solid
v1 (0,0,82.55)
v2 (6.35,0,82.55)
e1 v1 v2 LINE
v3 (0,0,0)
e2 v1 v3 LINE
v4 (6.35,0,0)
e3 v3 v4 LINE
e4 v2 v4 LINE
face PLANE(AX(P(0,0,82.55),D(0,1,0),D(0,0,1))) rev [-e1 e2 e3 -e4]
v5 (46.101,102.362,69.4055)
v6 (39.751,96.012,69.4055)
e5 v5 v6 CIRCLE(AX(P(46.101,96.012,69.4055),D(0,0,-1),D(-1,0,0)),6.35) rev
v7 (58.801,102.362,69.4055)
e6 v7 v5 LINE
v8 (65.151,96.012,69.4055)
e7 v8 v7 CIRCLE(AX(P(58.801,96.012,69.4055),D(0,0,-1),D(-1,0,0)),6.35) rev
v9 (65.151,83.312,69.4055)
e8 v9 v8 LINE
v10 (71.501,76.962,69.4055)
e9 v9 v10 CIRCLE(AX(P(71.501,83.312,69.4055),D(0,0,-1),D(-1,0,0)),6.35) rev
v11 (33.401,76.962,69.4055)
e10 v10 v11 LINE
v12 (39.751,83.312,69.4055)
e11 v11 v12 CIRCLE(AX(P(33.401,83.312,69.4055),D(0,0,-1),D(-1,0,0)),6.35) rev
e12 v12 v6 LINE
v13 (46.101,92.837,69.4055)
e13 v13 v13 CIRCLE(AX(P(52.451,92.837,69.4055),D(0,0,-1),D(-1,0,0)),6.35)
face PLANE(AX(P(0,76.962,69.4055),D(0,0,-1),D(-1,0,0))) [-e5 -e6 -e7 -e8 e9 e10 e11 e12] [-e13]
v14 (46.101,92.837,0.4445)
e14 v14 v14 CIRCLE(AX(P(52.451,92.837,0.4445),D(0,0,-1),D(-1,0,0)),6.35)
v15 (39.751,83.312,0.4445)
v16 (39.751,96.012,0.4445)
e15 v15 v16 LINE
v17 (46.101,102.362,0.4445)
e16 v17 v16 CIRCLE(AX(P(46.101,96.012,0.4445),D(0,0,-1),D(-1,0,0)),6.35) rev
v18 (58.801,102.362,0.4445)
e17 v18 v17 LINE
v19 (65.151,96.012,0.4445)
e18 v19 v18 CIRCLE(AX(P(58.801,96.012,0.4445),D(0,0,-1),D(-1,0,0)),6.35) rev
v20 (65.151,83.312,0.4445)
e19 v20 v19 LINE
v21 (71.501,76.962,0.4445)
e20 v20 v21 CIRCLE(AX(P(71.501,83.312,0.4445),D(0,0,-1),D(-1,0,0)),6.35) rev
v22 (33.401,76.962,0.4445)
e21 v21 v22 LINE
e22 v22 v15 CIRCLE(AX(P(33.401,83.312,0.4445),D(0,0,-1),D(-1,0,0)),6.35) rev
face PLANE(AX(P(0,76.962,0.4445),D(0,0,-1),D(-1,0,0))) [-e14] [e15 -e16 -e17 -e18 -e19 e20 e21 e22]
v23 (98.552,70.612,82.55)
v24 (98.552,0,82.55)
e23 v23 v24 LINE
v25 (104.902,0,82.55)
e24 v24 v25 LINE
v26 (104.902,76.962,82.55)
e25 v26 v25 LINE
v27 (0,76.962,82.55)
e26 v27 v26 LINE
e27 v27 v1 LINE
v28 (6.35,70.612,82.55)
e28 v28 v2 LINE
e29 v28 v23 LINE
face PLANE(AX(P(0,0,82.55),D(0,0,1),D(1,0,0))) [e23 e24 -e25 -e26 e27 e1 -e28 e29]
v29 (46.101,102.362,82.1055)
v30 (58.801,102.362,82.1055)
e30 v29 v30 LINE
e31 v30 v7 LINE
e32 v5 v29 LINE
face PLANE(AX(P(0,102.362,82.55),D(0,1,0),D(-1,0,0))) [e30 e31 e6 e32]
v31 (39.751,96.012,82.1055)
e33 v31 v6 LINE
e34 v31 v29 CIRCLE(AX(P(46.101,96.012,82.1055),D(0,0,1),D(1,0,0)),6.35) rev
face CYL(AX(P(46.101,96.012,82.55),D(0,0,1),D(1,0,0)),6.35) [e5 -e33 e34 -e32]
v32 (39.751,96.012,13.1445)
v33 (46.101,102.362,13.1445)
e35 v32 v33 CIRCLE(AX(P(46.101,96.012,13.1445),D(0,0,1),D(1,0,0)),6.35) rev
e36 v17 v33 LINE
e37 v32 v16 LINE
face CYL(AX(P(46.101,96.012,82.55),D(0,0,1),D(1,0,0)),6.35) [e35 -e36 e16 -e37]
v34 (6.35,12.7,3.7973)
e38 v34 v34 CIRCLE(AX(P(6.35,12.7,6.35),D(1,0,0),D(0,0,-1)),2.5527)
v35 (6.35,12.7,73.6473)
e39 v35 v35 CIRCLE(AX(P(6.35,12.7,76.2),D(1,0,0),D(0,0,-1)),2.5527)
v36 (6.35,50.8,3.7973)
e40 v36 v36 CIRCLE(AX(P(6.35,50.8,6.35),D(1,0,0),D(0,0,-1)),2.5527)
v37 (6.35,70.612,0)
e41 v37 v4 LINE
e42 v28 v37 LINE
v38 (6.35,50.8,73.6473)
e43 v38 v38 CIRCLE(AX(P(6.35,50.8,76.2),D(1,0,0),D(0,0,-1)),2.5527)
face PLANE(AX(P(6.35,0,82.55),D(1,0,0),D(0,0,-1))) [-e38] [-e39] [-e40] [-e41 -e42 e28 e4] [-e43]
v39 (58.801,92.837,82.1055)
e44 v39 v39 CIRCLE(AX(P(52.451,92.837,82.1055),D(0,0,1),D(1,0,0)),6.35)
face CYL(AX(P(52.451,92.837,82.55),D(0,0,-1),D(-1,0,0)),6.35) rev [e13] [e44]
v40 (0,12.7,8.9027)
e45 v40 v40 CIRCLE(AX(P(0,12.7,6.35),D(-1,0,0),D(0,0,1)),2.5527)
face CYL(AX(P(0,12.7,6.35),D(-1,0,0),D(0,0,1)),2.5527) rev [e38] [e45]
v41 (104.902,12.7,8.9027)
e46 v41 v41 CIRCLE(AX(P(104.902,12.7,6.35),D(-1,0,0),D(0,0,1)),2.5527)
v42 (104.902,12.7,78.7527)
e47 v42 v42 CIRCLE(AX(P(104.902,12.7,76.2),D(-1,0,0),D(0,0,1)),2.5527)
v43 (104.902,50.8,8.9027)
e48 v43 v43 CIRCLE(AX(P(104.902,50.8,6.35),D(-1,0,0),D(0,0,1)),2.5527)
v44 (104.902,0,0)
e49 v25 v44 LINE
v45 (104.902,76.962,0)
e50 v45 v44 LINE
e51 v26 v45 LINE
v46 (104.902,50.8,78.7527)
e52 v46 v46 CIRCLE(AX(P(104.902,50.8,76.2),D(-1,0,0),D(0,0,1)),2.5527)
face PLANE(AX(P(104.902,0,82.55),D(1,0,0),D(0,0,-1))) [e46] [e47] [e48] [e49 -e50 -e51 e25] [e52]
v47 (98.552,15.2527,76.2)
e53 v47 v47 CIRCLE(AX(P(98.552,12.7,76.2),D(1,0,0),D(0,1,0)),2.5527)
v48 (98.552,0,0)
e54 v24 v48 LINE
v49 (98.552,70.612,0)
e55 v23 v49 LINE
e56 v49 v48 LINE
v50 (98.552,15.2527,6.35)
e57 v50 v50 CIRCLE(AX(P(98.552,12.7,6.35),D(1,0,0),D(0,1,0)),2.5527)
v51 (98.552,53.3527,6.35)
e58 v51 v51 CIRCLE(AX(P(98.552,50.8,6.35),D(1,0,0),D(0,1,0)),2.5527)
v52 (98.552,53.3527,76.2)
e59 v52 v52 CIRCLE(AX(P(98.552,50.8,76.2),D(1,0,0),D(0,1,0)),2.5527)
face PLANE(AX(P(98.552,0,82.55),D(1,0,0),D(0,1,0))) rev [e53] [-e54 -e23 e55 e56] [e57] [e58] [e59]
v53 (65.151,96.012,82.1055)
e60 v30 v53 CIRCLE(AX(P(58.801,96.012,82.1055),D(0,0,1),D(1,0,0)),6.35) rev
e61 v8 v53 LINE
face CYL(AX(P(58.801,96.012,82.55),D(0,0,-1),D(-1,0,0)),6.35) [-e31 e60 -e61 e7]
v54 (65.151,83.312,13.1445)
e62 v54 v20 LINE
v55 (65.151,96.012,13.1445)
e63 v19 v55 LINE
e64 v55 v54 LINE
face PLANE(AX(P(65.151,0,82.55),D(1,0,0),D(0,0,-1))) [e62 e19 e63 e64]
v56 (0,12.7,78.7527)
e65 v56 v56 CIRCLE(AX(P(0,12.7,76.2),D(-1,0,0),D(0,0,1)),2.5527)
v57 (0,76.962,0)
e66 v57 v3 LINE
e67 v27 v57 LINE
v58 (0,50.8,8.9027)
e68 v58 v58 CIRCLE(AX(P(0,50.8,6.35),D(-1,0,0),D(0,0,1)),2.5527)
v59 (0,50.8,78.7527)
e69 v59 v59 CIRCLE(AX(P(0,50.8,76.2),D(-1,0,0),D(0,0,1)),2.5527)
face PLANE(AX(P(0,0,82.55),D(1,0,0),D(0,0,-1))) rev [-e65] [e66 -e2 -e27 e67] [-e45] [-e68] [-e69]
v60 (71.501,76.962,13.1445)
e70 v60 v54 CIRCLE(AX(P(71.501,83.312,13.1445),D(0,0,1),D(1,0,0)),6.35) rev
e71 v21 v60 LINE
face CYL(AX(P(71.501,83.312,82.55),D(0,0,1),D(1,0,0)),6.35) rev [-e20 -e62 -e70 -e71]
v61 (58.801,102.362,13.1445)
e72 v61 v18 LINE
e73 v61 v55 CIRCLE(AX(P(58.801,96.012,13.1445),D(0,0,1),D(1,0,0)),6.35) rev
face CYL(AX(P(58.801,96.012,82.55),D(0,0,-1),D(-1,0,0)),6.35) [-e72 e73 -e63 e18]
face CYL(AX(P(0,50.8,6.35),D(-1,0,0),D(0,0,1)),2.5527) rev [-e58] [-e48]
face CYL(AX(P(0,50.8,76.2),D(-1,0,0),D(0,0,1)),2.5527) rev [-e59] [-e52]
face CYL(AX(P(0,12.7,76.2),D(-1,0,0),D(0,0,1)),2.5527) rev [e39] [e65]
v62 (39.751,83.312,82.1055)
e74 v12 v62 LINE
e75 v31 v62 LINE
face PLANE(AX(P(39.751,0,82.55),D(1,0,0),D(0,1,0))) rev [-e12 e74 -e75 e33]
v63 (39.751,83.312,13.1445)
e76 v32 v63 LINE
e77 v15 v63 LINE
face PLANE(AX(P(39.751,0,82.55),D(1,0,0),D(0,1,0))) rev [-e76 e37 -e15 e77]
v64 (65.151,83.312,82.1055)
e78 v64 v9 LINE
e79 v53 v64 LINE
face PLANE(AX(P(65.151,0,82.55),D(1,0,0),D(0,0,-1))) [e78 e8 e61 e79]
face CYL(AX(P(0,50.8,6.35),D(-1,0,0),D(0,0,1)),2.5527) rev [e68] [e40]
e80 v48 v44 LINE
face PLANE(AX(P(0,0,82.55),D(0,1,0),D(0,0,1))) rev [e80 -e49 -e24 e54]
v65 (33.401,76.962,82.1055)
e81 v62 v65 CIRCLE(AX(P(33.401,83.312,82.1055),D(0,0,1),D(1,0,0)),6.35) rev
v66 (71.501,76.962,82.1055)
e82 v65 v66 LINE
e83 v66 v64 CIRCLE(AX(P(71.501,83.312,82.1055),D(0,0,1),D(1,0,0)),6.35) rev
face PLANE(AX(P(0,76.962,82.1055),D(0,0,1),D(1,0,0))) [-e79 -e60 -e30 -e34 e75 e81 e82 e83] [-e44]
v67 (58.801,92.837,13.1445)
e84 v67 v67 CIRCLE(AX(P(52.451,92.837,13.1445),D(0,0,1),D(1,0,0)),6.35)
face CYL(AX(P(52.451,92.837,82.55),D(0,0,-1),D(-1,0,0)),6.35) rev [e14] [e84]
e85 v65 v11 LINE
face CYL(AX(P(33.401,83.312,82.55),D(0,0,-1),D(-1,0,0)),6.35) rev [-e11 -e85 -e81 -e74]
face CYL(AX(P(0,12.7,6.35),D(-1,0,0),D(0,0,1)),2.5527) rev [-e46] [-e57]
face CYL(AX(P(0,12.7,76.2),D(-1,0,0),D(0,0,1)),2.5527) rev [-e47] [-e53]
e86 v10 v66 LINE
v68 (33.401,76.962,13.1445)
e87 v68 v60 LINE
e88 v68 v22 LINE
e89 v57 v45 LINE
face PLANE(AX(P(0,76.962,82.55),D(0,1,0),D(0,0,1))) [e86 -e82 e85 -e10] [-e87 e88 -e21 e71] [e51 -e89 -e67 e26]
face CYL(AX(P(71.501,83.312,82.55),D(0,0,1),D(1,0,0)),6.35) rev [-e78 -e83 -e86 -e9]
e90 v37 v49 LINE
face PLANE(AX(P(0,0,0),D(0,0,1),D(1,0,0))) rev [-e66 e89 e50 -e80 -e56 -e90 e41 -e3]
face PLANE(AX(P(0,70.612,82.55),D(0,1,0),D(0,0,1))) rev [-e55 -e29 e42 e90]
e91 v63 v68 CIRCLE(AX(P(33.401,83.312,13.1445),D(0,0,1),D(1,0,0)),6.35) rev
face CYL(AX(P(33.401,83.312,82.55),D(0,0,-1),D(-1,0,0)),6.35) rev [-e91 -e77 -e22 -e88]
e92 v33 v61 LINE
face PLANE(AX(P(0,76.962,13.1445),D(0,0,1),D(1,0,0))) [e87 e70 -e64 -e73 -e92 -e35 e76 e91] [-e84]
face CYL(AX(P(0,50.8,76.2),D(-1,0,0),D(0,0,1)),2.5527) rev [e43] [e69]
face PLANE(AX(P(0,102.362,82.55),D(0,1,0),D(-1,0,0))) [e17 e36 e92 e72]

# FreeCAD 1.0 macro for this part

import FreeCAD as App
import Part
import Sketcher
from FreeCAD import Vector
Q = App.Units.Quantity


def edges_at(feature, points):
    """Names of the edges that pass closest to the given points."""
    edges = feature.Shape.Edges
    near = lambda p: min(range(len(edges)), key=lambda i: edges[i].distToShape(Part.Vertex(*p))[0])
    return sorted({f"Edge{near(p) + 1}" for p in points})


def add_polygon(sketch, points):
    """Adds a closed chain of lines whose ends are joined by coincident constraints."""
    first, n = sketch.GeometryCount, len(points)
    for a, b in zip(points, points[1:] + points[:1]):
        sketch.addGeometry(Part.LineSegment(App.Vector(*a, 0), App.Vector(*b, 0)), False)
    for i in range(n):
        sketch.addConstraint(Sketcher.Constraint("Coincident", first + i, 2, first + (i + 1) % n, 1))

doc = App.newDocument("Part")
body = doc.addObject("PartDesign::Body", "Body")

sketch1 = body.newObject("Sketcher::SketchObject", "Sketch")
sketch1.AttachmentSupport = (doc.getObject("XY_Plane"), [""])
sketch1.MapMode = "FlatFace"
add_polygon(sketch1, [(40, 102), (40, 77), (0, 77), (0, 0), (6, 0), (6, 71), (99, 71), (99, 0), (105, 0), (105, 77), (65, 77), (65, 102)])
sketch1.addGeometry(Part.Circle(Vector(52, 93, 0), Vector(0, 0, 1), 6), False)
sketch1.addConstraint([
    Sketcher.Constraint("Vertical", 0),
    Sketcher.Constraint("Horizontal", 1),
    Sketcher.Constraint("Vertical", 2),
    Sketcher.Constraint("Horizontal", 3),
    Sketcher.Constraint("Vertical", 4),
    Sketcher.Constraint("Horizontal", 5),
    Sketcher.Constraint("Vertical", 6),
    Sketcher.Constraint("Horizontal", 7),
    Sketcher.Constraint("Vertical", 8),
    Sketcher.Constraint("Horizontal", 9),
    Sketcher.Constraint("Vertical", 10),
    Sketcher.Constraint("Horizontal", 11),
    Sketcher.Constraint("Coincident", 2, 2, -1, 1),
    Sketcher.Constraint("PointOnObject", 6, 2, -1),
    Sketcher.Constraint("Horizontal", 1, 2, 8, 2),
    Sketcher.Constraint("Equal", 3, 7),
    Sketcher.Constraint("Equal", 1, 9),
    Sketcher.Constraint("Equal", 11, 0),
    Sketcher.Constraint("Diameter", 12, Q("0.5 in")),
    Sketcher.Constraint("DistanceX", 11, 2, 11, 1, Q("1 in")),
    Sketcher.Constraint("DistanceX", 3, 1, 3, 2, Q("0.25 in")),
    Sketcher.Constraint("DistanceX", 5, 1, 5, 2, Q("3.63 in")),
    Sketcher.Constraint("DistanceY", 2, 2, 2, 1, Q("3.03 in")),
    Sketcher.Constraint("DistanceY", 4, 1, 4, 2, Q("2.78 in")),
    Sketcher.Constraint("DistanceX", 0, 2, 12, 3, Q("0.5 in")),
    Sketcher.Constraint("DistanceY", -1, 1, 12, 3, Q("3.655 in")),
])
pad1 = body.newObject("PartDesign::Pad", "Pad")
pad1.Profile = sketch1
pad1.Length = Q("3.25 in")
doc.recompute()

fillet = body.newObject("PartDesign::Fillet", "Fillet")
fillet.Base = (pad1, edges_at(pad1, [
    (65.151, 76.962, 41.275),
    (39.751, 76.962, 41.275),
    (39.751, 102.362, 41.275),
    (65.151, 102.362, 41.275),
]))
fillet.Radius = Q("0.25 in")

sketch2 = body.newObject("Sketcher::SketchObject", "Sketch001")
sketch2.AttachmentSupport = (doc.getObject("XZ_Plane"), [""])
sketch2.MapMode = "FlatFace"
sketch2.AttachmentOffset = App.Placement(Vector(0, 0, -4.28 * 25.4), App.Rotation())
add_polygon(sketch2, [(-12, -27), (-12, 0), (125, 0), (125, -27)])
add_polygon(sketch2, [(-12, 13), (-12, 69), (125, 69), (125, 13)])
add_polygon(sketch2, [(-12, 82), (-12, 106), (125, 106), (125, 82)])
sketch2.addConstraint([
    Sketcher.Constraint("Vertical", 0),
    Sketcher.Constraint("Horizontal", 1),
    Sketcher.Constraint("Vertical", 2),
    Sketcher.Constraint("Horizontal", 3),
    Sketcher.Constraint("Vertical", 4),
    Sketcher.Constraint("Horizontal", 5),
    Sketcher.Constraint("Vertical", 6),
    Sketcher.Constraint("Horizontal", 7),
    Sketcher.Constraint("Vertical", 8),
    Sketcher.Constraint("Horizontal", 9),
    Sketcher.Constraint("Vertical", 10),
    Sketcher.Constraint("Horizontal", 11),
    Sketcher.Constraint("Vertical", 3, 2, 4, 2),
    Sketcher.Constraint("Vertical", 2, 2, 5, 2),
    Sketcher.Constraint("Vertical", 7, 2, 8, 2),
    Sketcher.Constraint("Vertical", 6, 2, 9, 2),
    Sketcher.Constraint("DistanceY", 1, 2, 6, 2, Q("0.5 in")),
    Sketcher.Constraint("DistanceY", 5, 2, 10, 2, Q("0.5 in")),
    Sketcher.Constraint("DistanceY", 4, 1, 4, 2, Q("2.215 in")),
    Sketcher.Constraint("DistanceY", 0, 1, 0, 2, Q("1.0942999 in")),
    Sketcher.Constraint("DistanceY", -1, 1, 0, 2, Q("0.0175 in")),
    Sketcher.Constraint("DistanceX", 1, 1, 1, 2, Q("136.608572 mm")),
    Sketcher.Constraint("DistanceY", 8, 1, 8, 2, Q("24.259467 mm")),
    Sketcher.Constraint("DistanceX", 0, 2, -1, 1, Q("11.726027 mm")),
])
pocket1 = body.newObject("PartDesign::Pocket", "Pocket")
pocket1.Profile = sketch2
pocket1.Length = Q("1.25 in")
pocket1.Reversed = True

sketch3 = body.newObject("Sketcher::SketchObject", "Sketch002")
sketch3.AttachmentSupport = (doc.getObject("YZ_Plane"), [""])
sketch3.MapMode = "FlatFace"
sketch3.addGeometry([
    Part.Circle(Vector(50.8, 6.3, 0), Vector(0, 0, 1), 2.6),
    Part.Circle(Vector(12.7, 6.3, 0), Vector(0, 0, 1), 2.6),
    Part.Circle(Vector(12.7, 76.2, 0), Vector(0, 0, 1), 2.6),
    Part.Circle(Vector(50.8, 76.2, 0), Vector(0, 0, 1), 2.6),
], False)
sketch3.addConstraint([
    Sketcher.Constraint("Equal", 0, 1),
    Sketcher.Constraint("Equal", 1, 2),
    Sketcher.Constraint("Equal", 2, 3),
    Sketcher.Constraint("Horizontal", 0, 3, 1, 3),
    Sketcher.Constraint("Horizontal", 2, 3, 3, 3),
    Sketcher.Constraint("Vertical", 1, 3, 2, 3),
    Sketcher.Constraint("Vertical", 0, 3, 3, 3),
    Sketcher.Constraint("Diameter", 0, Q("0.201 in")),
    Sketcher.Constraint("DistanceX", -1, 1, 0, 3, Q("2 in")),
    Sketcher.Constraint("DistanceY", -1, 1, 2, 3, Q("3 in")),
    Sketcher.Constraint("DistanceX", -1, 1, 1, 3, Q("0.5 in")),
    Sketcher.Constraint("DistanceY", -1, 1, 0, 3, Q("0.25 in")),
])
doc.recompute()
hole = body.newObject("PartDesign::Hole", "Hole")
hole.Profile = sketch3
hole.ThreadType = "None"
hole.Diameter = Q("0.201 in")
hole.DepthType = "ThroughAll"
hole.Reversed = True

doc.recompute()
